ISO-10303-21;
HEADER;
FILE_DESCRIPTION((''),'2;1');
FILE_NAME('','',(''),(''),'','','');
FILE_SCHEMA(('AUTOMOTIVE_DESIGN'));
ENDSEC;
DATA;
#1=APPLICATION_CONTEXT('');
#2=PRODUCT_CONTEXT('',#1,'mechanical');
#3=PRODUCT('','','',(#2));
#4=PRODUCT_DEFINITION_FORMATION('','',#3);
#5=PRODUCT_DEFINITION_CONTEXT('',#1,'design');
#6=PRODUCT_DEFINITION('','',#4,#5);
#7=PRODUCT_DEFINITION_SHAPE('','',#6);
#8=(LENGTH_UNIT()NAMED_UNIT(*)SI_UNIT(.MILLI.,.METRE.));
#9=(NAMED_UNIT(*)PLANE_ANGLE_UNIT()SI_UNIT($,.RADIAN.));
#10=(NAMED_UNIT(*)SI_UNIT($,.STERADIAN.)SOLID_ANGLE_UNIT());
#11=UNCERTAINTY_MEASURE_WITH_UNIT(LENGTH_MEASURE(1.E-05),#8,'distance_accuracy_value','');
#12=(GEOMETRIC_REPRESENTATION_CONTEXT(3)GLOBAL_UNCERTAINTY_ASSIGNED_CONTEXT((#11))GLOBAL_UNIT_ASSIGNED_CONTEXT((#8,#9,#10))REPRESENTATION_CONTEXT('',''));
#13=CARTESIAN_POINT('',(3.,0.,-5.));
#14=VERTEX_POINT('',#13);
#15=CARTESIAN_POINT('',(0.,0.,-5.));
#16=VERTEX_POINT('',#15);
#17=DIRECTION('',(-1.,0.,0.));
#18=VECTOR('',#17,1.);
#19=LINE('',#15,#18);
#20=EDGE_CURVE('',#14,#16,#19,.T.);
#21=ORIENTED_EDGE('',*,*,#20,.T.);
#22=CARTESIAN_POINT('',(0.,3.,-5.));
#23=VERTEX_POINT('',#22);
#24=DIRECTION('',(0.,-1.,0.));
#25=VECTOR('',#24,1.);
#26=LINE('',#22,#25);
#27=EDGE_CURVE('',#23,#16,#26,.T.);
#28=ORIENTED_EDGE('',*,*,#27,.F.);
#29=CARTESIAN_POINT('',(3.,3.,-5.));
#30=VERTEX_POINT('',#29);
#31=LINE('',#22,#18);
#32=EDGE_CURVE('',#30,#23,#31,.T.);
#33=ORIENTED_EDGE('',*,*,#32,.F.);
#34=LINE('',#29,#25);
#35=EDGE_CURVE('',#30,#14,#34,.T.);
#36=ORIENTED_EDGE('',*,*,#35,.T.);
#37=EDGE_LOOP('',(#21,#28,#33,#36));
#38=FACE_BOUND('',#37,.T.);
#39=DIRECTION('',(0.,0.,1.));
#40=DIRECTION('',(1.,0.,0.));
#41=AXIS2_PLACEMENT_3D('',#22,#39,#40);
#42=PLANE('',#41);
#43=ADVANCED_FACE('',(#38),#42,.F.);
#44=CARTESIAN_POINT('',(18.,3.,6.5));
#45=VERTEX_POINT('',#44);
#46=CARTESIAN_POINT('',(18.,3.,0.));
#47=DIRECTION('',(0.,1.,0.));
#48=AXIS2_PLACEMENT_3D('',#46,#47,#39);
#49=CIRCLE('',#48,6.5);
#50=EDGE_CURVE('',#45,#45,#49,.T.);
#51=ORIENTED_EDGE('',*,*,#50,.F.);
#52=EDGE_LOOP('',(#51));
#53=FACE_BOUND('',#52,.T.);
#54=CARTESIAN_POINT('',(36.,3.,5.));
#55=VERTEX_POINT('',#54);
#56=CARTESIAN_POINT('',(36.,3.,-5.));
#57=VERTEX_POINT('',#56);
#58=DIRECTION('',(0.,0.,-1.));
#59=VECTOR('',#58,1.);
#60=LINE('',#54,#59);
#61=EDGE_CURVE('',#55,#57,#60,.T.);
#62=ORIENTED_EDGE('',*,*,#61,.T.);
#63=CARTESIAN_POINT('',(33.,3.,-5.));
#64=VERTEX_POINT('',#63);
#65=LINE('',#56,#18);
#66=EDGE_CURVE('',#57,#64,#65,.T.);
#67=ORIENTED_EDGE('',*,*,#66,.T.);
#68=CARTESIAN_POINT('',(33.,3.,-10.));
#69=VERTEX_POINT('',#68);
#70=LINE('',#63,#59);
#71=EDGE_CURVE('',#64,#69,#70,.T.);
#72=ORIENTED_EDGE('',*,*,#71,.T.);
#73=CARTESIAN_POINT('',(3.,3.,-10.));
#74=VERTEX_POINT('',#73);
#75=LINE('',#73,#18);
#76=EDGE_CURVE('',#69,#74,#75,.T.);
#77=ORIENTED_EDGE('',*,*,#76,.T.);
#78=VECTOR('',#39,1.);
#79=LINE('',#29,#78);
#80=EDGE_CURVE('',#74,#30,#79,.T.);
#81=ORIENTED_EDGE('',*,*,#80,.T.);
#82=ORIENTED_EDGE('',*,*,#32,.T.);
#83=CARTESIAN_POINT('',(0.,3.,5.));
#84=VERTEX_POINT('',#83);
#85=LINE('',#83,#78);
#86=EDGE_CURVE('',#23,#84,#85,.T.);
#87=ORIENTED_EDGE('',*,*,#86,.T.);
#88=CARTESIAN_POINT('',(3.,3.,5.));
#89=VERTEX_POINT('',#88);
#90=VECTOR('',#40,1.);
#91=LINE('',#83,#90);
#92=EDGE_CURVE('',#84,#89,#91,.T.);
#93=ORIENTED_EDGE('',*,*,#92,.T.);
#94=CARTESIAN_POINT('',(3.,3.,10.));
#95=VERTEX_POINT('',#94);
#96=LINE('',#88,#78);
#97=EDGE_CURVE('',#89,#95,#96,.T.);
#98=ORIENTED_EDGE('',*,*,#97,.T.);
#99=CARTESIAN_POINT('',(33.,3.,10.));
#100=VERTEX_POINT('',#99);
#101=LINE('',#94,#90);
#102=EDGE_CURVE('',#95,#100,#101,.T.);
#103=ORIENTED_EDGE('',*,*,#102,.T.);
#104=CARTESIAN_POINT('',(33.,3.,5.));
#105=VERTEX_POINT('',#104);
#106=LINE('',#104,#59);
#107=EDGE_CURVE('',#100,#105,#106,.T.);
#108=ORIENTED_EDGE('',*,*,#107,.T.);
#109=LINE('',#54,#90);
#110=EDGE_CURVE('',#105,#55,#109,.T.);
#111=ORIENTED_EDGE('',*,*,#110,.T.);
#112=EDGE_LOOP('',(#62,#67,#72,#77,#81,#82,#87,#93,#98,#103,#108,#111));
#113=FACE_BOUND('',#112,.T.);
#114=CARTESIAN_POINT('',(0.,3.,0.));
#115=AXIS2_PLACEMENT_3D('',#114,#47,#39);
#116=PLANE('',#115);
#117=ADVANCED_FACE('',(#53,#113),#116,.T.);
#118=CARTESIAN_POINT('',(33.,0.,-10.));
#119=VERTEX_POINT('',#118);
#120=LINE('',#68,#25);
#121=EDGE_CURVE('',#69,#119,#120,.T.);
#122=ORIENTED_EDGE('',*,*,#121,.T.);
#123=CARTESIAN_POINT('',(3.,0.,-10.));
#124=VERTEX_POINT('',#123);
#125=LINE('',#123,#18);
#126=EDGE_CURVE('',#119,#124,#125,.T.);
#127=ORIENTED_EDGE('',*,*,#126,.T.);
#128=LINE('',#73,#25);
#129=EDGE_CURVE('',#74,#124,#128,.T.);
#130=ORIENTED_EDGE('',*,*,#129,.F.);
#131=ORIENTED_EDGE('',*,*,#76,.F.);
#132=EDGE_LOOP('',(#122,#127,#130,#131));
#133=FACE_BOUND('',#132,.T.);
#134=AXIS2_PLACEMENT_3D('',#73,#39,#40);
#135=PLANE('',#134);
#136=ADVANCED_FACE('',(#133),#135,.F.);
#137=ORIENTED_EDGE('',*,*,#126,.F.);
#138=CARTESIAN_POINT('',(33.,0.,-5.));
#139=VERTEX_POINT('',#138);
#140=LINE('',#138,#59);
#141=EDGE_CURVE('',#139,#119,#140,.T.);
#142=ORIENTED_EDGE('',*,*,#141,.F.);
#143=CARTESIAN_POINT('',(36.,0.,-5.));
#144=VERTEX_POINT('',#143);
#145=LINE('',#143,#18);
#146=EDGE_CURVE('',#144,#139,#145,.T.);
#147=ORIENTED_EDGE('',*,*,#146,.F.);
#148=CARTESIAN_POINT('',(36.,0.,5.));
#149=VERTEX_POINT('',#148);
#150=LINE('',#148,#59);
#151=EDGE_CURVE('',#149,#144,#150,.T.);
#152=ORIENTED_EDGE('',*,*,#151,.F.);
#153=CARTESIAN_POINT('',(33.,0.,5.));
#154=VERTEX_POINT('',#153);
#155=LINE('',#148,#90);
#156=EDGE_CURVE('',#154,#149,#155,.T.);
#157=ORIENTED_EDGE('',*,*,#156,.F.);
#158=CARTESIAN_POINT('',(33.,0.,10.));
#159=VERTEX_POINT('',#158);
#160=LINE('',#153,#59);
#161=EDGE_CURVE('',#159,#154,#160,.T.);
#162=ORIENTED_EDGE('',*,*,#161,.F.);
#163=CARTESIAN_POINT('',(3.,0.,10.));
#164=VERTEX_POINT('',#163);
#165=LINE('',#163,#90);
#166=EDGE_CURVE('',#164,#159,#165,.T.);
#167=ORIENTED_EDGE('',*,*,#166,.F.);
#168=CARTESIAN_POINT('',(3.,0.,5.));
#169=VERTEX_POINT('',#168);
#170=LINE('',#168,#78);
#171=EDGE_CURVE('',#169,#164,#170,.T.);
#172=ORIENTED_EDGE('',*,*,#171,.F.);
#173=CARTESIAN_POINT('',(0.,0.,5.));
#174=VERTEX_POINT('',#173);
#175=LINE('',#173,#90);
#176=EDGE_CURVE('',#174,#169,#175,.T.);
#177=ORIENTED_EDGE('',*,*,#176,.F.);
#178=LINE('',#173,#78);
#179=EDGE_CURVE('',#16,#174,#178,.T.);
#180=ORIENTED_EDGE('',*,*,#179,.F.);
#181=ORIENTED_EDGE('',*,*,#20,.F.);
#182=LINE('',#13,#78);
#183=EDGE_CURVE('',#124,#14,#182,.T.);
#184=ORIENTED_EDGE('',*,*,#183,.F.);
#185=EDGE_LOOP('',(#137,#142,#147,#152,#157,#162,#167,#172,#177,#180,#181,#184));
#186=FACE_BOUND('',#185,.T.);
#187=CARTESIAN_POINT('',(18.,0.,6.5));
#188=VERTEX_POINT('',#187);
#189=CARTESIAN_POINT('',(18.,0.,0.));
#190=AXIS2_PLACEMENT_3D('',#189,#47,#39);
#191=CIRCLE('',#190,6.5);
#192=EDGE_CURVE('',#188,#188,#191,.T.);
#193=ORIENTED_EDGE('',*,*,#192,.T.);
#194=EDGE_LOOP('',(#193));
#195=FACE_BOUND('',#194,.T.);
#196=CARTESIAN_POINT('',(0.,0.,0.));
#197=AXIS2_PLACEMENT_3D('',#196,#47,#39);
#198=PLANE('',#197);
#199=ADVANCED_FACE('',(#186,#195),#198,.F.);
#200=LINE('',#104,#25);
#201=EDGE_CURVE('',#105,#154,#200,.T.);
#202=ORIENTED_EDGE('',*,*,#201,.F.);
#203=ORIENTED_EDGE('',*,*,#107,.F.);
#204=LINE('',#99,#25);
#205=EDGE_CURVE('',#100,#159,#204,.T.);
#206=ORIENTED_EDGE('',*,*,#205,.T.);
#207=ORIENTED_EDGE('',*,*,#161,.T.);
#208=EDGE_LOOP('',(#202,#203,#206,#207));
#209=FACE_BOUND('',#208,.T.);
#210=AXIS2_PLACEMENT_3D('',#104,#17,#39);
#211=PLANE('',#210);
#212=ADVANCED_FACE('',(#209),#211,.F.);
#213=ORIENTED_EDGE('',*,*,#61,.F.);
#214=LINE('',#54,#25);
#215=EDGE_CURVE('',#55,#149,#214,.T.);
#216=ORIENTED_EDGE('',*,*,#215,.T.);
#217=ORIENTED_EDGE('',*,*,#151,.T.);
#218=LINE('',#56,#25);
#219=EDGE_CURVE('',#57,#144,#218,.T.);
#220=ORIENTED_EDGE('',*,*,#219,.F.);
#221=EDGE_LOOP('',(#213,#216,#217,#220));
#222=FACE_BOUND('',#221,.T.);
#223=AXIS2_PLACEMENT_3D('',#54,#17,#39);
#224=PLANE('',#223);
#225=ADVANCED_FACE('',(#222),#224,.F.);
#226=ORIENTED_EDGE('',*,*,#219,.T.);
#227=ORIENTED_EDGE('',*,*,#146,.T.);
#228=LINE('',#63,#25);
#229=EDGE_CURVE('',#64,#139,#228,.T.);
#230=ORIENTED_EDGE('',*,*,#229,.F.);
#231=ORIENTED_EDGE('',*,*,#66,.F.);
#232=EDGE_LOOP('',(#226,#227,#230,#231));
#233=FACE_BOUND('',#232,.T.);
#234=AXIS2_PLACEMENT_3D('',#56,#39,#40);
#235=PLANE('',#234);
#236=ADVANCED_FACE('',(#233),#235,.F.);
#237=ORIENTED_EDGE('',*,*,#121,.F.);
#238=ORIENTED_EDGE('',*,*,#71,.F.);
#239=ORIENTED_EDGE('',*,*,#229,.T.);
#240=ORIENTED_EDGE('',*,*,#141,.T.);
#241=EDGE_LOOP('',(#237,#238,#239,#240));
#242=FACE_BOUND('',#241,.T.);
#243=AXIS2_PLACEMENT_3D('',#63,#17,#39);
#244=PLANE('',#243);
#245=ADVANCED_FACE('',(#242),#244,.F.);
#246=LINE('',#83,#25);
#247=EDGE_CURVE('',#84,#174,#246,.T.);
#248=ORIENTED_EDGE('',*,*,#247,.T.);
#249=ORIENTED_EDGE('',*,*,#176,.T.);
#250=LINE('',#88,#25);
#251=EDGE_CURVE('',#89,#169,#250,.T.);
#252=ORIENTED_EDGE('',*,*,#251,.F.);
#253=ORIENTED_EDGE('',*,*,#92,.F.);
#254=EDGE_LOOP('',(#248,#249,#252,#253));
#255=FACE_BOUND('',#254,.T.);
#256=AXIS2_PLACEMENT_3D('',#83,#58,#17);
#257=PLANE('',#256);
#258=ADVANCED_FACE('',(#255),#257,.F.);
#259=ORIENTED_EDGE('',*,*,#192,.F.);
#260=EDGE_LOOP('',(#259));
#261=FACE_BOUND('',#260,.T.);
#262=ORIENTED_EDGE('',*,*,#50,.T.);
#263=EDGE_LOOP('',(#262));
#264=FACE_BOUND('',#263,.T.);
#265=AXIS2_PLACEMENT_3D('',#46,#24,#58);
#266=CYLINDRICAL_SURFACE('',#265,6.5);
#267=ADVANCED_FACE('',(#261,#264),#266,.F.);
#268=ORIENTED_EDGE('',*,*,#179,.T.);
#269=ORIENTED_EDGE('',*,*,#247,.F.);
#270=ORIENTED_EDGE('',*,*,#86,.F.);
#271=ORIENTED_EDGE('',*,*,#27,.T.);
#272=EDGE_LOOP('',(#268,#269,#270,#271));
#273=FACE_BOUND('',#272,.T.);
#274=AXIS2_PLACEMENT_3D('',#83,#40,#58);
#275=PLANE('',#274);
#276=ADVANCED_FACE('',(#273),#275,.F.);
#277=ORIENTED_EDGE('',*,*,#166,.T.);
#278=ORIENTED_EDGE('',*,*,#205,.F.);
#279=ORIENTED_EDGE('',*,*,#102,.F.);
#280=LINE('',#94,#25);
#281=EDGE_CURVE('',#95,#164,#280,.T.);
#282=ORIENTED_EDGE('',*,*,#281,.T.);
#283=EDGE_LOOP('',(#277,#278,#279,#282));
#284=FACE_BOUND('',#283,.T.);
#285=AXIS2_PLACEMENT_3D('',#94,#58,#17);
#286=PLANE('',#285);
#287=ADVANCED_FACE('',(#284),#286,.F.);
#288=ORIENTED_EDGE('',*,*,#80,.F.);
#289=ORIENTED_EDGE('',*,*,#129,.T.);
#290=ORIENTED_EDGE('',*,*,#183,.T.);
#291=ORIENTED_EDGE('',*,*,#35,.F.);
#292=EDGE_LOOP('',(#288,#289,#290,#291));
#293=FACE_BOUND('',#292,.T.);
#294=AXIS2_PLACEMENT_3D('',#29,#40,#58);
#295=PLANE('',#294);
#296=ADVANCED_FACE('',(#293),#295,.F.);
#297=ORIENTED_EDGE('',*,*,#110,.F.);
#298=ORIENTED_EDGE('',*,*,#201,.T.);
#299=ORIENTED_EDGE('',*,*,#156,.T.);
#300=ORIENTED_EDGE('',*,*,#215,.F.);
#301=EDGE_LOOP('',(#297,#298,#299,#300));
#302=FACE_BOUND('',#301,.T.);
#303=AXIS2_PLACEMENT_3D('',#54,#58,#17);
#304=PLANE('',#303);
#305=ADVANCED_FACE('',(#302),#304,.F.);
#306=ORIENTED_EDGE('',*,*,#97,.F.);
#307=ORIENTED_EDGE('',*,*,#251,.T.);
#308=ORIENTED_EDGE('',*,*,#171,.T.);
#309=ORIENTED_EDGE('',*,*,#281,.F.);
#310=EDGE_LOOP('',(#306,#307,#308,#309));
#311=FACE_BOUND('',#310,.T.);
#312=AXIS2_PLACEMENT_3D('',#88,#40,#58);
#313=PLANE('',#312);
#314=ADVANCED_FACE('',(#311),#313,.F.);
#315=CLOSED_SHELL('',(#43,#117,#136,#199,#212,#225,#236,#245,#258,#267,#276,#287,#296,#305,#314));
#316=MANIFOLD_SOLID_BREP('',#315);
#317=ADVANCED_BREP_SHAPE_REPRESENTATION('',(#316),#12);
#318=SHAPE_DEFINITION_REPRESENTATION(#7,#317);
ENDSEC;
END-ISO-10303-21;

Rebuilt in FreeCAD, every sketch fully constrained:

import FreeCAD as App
import Part
import Sketcher

V = App.Vector
Q = App.Units.Quantity


def add_polygon(sketch, points):
    """Adds a closed chain of lines whose ends are joined by coincident constraints."""
    first, n = sketch.GeometryCount, len(points)
    for a, b in zip(points, points[1:] + points[:1]):
        sketch.addGeometry(Part.LineSegment(App.Vector(*a, 0), App.Vector(*b, 0)), False)
    for i in range(n):
        sketch.addConstraint(Sketcher.Constraint("Coincident", first + i, 2, first + (i + 1) % n, 1))

doc = App.newDocument("Part")
body = doc.addObject("PartDesign::Body", "Body")

# Sketch on XZ plane
sketch1 = doc.addObject("Sketcher::SketchObject", "Sketch")
body.addObject(sketch1)
sketch1.AttachmentSupport = (doc.XZ_Plane, [""])
sketch1.MapMode = "FlatFace"
add_polygon(sketch1, [(0, -5), (0, 5), (3, 5), (3, 10), (33, 10), (33, 5), (36, 5), (36, -5), (33, -5), (33, -10), (3, -10), (3, -5)])  # lines 0-11
sketch1.addGeometry(Part.Circle(V(18, 0, 0), V(0, 0, 1), 6.5), False)  # 12
sketch1.addConstraint([
    Sketcher.Constraint("Vertical", 0),
    Sketcher.Constraint("Horizontal", 1),
    Sketcher.Constraint("Vertical", 2),
    Sketcher.Constraint("Horizontal", 3),
    Sketcher.Constraint("Vertical", 4),
    Sketcher.Constraint("Horizontal", 5),
    Sketcher.Constraint("Vertical", 6),
    Sketcher.Constraint("Horizontal", 7),
    Sketcher.Constraint("Vertical", 8),
    Sketcher.Constraint("Horizontal", 9),
    Sketcher.Constraint("Vertical", 10),
    Sketcher.Constraint("Horizontal", 11),
    Sketcher.Constraint("Symmetric", 0, 2, 11, 2, -1, 1),
    Sketcher.Constraint("Symmetric", 4, 2, 7, 2, -1),
    Sketcher.Constraint("Symmetric", 2, 2, 9, 2, -1),
    Sketcher.Constraint("PointOnObject", 12, 3, -1),
    Sketcher.Constraint("Horizontal", 1, 2, 4, 2),
    Sketcher.Constraint("Equal", 1, 5),
    Sketcher.Constraint("Diameter", 12, Q("13 mm")),
    Sketcher.Constraint("DistanceX", 1, 1, 1, 2, Q("3 mm")),
    Sketcher.Constraint("DistanceX", 3, 1, 3, 2, Q("30 mm")),
    Sketcher.Constraint("DistanceY", 0, 1, 0, 2, Q("10 mm")),
    Sketcher.Constraint("DistanceY", 2, 1, 2, 2, Q("5 mm")),
    Sketcher.Constraint("DistanceX", -1, 1, 12, 3, Q("18 mm")),
])
pad1 = doc.addObject("PartDesign::Pad", "Pad")
body.addObject(pad1)
pad1.Profile = sketch1
pad1.Length = 3
pad1.Reversed = True

doc.recompute()
